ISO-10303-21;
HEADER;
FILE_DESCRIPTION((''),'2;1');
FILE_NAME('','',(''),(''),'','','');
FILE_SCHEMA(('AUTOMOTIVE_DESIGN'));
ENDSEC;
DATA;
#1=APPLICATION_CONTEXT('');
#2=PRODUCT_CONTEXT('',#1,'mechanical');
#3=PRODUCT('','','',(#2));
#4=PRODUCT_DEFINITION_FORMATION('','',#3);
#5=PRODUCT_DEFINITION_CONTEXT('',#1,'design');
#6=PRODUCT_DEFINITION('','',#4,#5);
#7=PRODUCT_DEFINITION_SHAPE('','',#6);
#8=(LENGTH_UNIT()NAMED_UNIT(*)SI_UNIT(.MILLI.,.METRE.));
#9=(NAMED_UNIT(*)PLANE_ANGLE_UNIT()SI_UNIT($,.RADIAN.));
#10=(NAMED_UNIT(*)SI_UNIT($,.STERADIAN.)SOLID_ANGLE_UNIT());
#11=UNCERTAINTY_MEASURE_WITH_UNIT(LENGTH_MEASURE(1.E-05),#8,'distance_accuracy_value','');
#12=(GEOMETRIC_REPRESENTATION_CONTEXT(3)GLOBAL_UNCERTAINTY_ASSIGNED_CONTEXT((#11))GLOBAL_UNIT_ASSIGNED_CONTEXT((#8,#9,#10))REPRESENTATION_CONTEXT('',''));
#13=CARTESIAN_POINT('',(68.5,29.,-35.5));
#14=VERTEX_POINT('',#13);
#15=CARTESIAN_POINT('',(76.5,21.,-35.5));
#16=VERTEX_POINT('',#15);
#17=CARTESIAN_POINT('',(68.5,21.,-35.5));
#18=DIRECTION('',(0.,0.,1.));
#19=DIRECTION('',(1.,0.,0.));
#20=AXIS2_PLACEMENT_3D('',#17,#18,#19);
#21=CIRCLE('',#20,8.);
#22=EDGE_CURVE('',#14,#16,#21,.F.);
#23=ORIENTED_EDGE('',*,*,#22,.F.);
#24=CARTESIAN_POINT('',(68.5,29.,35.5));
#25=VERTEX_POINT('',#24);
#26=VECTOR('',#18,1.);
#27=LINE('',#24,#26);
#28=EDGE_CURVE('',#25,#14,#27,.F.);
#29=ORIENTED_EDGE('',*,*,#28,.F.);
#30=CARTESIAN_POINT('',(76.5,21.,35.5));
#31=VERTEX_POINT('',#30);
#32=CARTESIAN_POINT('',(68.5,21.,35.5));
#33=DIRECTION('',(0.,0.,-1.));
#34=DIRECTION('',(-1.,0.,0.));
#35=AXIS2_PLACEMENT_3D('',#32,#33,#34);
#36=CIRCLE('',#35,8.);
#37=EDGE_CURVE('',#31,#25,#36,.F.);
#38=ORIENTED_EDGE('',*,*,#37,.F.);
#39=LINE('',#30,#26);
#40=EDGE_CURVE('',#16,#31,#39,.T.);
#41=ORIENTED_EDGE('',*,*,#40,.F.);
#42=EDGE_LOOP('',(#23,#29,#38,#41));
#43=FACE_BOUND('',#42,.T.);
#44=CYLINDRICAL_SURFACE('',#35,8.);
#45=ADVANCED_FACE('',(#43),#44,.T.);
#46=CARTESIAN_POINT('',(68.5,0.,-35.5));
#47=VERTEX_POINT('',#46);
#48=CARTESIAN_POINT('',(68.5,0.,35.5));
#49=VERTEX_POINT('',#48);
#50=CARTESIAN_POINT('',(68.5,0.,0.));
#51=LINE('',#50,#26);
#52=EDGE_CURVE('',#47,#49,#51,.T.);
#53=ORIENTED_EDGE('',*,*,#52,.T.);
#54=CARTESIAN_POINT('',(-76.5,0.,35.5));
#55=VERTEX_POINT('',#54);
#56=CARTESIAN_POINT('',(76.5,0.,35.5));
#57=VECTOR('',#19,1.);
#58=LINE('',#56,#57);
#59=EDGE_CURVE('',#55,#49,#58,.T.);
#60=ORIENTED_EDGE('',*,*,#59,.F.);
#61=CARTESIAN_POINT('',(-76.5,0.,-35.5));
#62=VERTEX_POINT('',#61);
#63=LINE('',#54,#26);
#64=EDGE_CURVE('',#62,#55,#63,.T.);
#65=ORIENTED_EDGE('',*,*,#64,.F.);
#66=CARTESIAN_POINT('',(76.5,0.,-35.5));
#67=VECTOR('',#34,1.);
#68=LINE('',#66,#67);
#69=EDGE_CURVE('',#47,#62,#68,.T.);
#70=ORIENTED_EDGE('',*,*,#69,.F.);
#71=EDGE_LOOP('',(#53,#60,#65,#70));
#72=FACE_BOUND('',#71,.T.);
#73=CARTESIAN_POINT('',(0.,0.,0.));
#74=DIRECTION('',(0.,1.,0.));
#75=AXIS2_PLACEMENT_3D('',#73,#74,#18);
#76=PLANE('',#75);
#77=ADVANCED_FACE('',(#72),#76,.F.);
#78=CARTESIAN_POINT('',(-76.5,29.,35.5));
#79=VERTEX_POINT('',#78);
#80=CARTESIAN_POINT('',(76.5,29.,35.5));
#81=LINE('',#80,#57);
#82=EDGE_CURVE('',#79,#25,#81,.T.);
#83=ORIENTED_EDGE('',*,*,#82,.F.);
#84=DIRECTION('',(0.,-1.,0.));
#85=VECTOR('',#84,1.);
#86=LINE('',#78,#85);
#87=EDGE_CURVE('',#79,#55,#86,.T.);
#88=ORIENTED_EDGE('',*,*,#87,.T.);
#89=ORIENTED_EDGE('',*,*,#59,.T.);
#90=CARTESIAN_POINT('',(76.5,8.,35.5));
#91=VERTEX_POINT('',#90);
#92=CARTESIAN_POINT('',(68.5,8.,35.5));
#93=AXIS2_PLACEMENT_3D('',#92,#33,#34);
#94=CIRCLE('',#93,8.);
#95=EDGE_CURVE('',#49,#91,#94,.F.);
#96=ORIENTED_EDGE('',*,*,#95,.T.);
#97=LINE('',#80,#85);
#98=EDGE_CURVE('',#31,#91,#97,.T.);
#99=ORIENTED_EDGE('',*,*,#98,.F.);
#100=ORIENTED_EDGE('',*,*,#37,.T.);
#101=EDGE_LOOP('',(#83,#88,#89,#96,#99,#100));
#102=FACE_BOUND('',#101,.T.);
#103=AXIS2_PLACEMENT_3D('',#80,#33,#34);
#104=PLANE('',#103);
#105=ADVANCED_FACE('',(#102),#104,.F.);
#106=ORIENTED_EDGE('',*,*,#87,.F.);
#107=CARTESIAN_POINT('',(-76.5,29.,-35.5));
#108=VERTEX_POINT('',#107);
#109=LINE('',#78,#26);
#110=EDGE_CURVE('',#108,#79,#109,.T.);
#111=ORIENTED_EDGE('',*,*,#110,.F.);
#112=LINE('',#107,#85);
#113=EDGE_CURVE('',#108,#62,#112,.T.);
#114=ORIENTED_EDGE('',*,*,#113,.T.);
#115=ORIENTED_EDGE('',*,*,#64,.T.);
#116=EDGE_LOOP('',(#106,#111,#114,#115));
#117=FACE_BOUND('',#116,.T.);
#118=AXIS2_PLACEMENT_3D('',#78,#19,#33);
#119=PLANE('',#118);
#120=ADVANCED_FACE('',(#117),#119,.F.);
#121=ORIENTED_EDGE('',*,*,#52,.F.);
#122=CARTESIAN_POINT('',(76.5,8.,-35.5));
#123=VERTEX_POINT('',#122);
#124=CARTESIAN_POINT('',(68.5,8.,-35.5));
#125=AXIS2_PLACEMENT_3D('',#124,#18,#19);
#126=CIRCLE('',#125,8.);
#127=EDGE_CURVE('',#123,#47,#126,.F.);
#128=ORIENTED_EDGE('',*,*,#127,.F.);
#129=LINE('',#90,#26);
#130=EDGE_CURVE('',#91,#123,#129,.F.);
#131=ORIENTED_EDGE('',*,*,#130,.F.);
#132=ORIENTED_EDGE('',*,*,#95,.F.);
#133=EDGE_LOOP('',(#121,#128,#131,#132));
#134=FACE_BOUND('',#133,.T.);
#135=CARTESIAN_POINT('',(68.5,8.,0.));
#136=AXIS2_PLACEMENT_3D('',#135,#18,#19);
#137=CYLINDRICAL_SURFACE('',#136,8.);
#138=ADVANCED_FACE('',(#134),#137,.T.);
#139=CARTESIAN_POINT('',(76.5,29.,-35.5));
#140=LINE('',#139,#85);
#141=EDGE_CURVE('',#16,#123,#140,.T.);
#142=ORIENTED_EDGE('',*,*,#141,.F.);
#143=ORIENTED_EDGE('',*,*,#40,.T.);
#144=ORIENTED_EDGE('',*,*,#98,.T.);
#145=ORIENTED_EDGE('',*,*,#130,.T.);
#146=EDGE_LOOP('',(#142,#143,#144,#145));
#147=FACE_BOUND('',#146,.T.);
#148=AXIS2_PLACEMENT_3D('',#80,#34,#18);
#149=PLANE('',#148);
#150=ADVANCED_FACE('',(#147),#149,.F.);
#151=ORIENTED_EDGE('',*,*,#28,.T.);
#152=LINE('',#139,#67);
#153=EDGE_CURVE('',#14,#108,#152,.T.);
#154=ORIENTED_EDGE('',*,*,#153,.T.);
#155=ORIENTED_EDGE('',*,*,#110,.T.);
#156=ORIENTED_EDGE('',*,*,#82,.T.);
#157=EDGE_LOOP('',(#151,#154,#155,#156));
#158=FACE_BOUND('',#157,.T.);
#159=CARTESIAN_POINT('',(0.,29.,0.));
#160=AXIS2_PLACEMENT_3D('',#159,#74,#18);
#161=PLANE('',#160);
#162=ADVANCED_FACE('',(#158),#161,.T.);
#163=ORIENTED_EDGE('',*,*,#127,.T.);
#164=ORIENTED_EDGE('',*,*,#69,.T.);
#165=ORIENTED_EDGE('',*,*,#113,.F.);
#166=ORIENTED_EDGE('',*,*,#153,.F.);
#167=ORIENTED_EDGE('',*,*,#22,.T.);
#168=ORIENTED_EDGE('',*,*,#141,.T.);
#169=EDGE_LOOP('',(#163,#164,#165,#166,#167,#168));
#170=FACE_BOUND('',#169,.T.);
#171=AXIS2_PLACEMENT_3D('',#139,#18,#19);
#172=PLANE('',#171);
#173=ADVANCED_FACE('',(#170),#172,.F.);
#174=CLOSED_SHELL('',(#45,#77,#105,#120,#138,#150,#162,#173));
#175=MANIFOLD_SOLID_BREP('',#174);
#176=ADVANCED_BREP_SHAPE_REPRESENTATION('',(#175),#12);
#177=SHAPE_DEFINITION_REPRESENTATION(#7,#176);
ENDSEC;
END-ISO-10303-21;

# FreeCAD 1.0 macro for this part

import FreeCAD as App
import Part
import Sketcher


def edges_at(feature, points):
    """Names of the edges that pass closest to the given points."""
    edges = feature.Shape.Edges
    near = lambda p: min(range(len(edges)), key=lambda i: edges[i].distToShape(Part.Vertex(*p))[0])
    return sorted({f"Edge{near(p) + 1}" for p in points})


def add_polygon(sketch, points):
    """Adds a closed chain of lines whose ends are joined by coincident constraints."""
    first, n = sketch.GeometryCount, len(points)
    for a, b in zip(points, points[1:] + points[:1]):
        sketch.addGeometry(Part.LineSegment(App.Vector(*a, 0), App.Vector(*b, 0)), False)
    for i in range(n):
        sketch.addConstraint(Sketcher.Constraint("Coincident", first + i, 2, first + (i + 1) % n, 1))

doc = App.newDocument("Part")
body = doc.addObject("PartDesign::Body", "Body")

# Sketch on XZ plane
sketch1 = body.newObject("Sketcher::SketchObject", "Sketch")
sketch1.AttachmentSupport = (doc.getObject("XZ_Plane"), [""])
sketch1.MapMode = "FlatFace"
add_polygon(sketch1, [(-76, -36), (-76, 36), (76, 36), (76, -36)])  # lines 0-3
sketch1.addConstraint(Sketcher.Constraint("Vertical", 0))
sketch1.addConstraint(Sketcher.Constraint("Horizontal", 1))
sketch1.addConstraint(Sketcher.Constraint("Vertical", 2))
sketch1.addConstraint(Sketcher.Constraint("Horizontal", 3))
sketch1.addConstraint(Sketcher.Constraint("Symmetric", 0, 2, 2, 2, -1, 1))
sketch1.addConstraint(Sketcher.Constraint("DistanceX", 1, 1, 1, 2, 153.0))
sketch1.addConstraint(Sketcher.Constraint("DistanceY", 0, 1, 0, 2, 71.0))
pad1 = body.newObject("PartDesign::Pad", "Pad")
pad1.Profile = sketch1
pad1.Length = 29
pad1.Reversed = True
doc.recompute()

fillet = body.newObject("PartDesign::Fillet", "Fillet")
fillet.Base = (pad1, edges_at(pad1, [(76.5, 29, 0)]))
fillet.Radius = 8
doc.recompute()

fillet2 = body.newObject("PartDesign::Fillet", "Fillet001")
fillet2.Base = (fillet, edges_at(fillet, [(76.5, 0, 0)]))
fillet2.Radius = 8

doc.recompute()
